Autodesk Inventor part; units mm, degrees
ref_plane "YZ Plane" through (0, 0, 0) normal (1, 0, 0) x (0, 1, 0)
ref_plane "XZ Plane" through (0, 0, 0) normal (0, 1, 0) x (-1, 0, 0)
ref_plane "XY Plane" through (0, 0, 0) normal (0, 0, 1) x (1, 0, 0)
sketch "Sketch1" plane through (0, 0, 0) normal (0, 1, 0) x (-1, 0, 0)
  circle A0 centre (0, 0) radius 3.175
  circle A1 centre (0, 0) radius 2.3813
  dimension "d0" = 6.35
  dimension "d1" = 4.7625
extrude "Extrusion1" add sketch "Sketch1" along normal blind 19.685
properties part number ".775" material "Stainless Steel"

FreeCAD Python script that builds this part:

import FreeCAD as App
import Part
import Sketcher

V = App.Vector
Q = App.Units.Quantity

doc = App.newDocument("Part")
body = doc.addObject("PartDesign::Body", "Body")

sketch1 = body.newObject("Sketcher::SketchObject", "Sketch")
sketch1.AttachmentSupport = (doc.getObject("XZ_Plane"), [""])
sketch1.MapMode = "FlatFace"
sketch1.addGeometry(Part.Circle(V(0, 0, 0), V(0, 0, 1), 3.2), False)
sketch1.addGeometry(Part.Circle(V(0, 0, 0), V(0, 0, 1), 2.4), False)
sketch1.addConstraint(Sketcher.Constraint("Coincident", 0, 3, -1, 1))
sketch1.addConstraint(Sketcher.Constraint("Coincident", 1, 3, -1, 1))
sketch1.addConstraint(Sketcher.Constraint("Diameter", 0, Q("0.25 in")))
sketch1.addConstraint(Sketcher.Constraint("Diameter", 1, Q("0.1875 in")))
pad1 = body.newObject("PartDesign::Pad", "Pad")
pad1.Profile = sketch1
pad1.Length = Q("0.775 in")
pad1.Reversed = True

doc.recompute()
